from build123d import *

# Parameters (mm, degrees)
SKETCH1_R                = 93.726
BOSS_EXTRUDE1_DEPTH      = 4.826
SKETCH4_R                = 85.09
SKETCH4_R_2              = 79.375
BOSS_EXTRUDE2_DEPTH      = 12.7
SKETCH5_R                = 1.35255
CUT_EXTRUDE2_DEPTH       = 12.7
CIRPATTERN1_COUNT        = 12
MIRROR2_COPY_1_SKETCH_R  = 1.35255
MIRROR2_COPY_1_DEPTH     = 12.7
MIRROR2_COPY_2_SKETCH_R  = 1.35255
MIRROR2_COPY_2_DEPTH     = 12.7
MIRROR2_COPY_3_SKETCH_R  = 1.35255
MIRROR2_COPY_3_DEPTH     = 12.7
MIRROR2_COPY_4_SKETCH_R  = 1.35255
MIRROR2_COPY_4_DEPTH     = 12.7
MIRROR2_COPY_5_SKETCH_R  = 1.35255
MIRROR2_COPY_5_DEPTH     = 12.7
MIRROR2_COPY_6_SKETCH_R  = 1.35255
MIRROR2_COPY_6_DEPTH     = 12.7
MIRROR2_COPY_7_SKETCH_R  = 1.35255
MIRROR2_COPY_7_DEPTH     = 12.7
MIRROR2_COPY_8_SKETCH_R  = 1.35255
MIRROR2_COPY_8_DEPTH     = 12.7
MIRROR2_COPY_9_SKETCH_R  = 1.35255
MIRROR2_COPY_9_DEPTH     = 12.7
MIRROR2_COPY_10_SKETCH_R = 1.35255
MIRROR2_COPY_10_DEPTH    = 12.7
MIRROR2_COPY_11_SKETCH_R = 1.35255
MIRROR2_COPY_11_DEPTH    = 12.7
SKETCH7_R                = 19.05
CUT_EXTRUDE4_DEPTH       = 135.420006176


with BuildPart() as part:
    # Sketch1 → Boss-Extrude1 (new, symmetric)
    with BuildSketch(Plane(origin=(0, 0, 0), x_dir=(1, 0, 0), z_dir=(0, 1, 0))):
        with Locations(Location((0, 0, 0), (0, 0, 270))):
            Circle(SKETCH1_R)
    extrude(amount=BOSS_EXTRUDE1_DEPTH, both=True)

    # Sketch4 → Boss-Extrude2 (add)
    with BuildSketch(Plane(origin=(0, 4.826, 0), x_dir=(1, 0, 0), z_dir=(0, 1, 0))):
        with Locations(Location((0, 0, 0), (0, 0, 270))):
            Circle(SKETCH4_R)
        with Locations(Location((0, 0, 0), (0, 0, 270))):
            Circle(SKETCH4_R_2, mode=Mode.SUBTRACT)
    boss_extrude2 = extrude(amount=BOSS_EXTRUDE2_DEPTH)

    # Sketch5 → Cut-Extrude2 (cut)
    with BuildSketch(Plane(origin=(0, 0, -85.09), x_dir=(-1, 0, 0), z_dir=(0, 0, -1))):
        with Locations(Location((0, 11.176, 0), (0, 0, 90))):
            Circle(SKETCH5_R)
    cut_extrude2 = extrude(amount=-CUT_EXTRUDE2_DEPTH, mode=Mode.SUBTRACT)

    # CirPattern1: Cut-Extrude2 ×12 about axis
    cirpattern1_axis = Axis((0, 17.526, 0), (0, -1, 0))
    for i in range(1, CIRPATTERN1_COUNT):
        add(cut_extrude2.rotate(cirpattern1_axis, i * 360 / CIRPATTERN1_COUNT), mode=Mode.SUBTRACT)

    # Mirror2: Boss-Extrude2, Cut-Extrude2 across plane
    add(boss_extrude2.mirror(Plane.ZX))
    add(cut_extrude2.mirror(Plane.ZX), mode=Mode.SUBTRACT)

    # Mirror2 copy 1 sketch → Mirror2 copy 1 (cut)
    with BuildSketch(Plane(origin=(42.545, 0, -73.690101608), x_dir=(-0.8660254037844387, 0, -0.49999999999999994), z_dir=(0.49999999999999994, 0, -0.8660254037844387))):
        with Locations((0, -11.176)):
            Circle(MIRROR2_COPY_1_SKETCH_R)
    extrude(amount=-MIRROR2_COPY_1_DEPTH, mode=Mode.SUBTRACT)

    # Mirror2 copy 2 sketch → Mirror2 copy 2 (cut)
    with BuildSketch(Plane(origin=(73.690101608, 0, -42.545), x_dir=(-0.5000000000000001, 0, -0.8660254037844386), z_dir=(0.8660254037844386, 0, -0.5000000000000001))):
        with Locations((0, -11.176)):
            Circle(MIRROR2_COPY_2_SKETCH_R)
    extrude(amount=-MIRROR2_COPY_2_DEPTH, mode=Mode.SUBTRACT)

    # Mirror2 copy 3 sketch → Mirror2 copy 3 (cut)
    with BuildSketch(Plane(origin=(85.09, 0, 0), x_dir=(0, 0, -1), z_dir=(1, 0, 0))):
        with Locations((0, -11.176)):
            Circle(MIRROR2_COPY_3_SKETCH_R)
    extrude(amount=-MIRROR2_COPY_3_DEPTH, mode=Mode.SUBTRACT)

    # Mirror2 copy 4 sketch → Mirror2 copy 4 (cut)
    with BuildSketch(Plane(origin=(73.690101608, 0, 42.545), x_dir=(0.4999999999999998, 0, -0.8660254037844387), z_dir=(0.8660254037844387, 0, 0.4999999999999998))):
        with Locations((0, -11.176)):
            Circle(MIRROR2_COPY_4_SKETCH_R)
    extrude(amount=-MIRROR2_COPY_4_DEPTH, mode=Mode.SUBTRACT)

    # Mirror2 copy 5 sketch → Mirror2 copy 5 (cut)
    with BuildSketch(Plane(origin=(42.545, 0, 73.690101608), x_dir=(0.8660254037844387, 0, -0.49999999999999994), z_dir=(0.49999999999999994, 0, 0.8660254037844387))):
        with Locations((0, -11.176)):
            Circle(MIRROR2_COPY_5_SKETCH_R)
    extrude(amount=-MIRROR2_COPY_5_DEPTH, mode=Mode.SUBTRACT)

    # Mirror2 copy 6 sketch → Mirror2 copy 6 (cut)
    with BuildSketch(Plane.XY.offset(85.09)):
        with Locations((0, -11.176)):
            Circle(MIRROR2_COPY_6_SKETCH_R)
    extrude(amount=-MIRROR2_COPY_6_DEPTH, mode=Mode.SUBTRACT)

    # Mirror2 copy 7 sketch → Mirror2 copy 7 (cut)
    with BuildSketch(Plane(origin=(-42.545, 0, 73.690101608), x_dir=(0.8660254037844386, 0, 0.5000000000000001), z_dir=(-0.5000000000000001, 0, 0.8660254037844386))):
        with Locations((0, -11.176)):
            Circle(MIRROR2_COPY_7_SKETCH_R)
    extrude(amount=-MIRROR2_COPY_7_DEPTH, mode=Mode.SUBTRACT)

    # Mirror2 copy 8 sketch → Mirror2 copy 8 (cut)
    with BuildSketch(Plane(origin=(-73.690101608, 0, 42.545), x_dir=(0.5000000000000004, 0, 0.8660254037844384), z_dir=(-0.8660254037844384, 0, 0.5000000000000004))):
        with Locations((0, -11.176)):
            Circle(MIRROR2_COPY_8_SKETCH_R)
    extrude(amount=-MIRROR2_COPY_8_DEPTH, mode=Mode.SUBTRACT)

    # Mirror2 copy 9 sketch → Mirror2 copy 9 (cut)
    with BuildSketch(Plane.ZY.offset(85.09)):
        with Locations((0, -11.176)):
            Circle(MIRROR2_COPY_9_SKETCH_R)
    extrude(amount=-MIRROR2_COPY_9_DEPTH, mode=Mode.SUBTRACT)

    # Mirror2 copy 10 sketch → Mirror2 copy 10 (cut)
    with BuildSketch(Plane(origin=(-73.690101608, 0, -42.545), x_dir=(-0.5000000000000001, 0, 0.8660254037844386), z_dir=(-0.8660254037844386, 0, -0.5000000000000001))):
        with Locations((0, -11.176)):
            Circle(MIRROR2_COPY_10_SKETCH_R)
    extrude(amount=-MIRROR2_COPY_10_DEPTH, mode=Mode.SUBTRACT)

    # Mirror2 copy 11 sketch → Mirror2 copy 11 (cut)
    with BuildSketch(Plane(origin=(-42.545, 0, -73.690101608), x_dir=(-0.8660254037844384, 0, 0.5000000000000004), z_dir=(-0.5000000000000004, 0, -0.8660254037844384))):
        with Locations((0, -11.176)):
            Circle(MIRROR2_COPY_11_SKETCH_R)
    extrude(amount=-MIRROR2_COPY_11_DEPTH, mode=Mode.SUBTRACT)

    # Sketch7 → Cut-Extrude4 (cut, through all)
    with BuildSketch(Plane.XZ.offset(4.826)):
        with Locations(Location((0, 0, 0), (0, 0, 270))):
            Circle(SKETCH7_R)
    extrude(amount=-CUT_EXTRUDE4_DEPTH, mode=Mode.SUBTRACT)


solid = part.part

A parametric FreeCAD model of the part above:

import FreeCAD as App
import Part
import Sketcher
Q = App.Units.Quantity

doc = App.newDocument("Part")
params = doc.addObject("Spreadsheet::Sheet", "Params")
for row, (alias, value) in enumerate([
    ("sketch1_diameter", "7.38 in"),
    ("pad1_length", "0.38 in"),
    ("sketch2_diameter", "6.7 in"),
    ("sketch2_diameter2", "6.25 in"),
    ("pad2_length", "0.5 in"),
    ("pocket1_length", "0.5 in"),
    ("pocket2_length", "0.5 in"),
    ("pocket3_length", "0.5 in"),
    ("pocket4_length", "0.5 in"),
    ("pocket5_length", "0.5 in"),
    ("pocket6_length", "0.5 in"),
    ("pocket7_length", "0.5 in"),
    ("pocket8_length", "0.5 in"),
    ("pocket9_length", "0.5 in"),
    ("pocket10_length", "0.5 in"),
    ("pocket11_length", "0.5 in"),
    ("pocket12_length", "0.5 in"),
    ("sketch15_diameter", "1.5 in"),
], start=1):
    params.set(f"A{row}", alias)
    params.set(f"B{row}", "=" + value)
    params.setAlias(f"B{row}", alias)

body = doc.addObject("PartDesign::Body", "Body")

# Sketch on XZ plane
sketch1 = body.newObject("Sketcher::SketchObject", "Sketch")
sketch1.AttachmentSupport = (doc.getObject("XZ_Plane"), [""])
sketch1.MapMode = "FlatFace"
sketch1.addGeometry(Part.Circle(App.Vector(0, 0, 0), App.Vector(0, 0, 1), 93.726), False)
sketch1.addConstraint([
    Sketcher.Constraint("Coincident", 0, 3, -1, 1),
    Sketcher.Constraint("Diameter", 0, Q("7.38 in")),
])
sketch1.setExpression("Constraints[1]", "Params.sketch1_diameter")
pad1 = body.newObject("PartDesign::Pad", "Pad")
pad1.Profile = sketch1
pad1.setExpression("Length", "Params.pad1_length")
pad1.Midplane = True

# Sketch on XZ plane
sketch2 = body.newObject("Sketcher::SketchObject", "Sketch001")
sketch2.AttachmentSupport = (doc.getObject("XZ_Plane"), [""])
sketch2.MapMode = "FlatFace"
sketch2.AttachmentOffset = App.Placement(App.Vector(0, 0, -0.19 * 25.4), App.Rotation())
sketch2.addGeometry([
    Part.Circle(App.Vector(0, 0, 0), App.Vector(0, 0, 1), 85.09),
    Part.Circle(App.Vector(0, 0, 0), App.Vector(0, 0, 1), 79.375),
], False)
sketch2.addConstraint([
    Sketcher.Constraint("Coincident", 0, 3, -1, 1),
    Sketcher.Constraint("Coincident", 1, 3, -1, 1),
    Sketcher.Constraint("Diameter", 0, Q("6.7 in")),
    Sketcher.Constraint("Diameter", 1, Q("6.25 in")),
])
sketch2.setExpression("Constraints[2]", "Params.sketch2_diameter")
sketch2.setExpression("Constraints[3]", "Params.sketch2_diameter2")
pad2 = body.newObject("PartDesign::Pad", "Pad001")
pad2.Profile = sketch2
pad2.setExpression("Length", "Params.pad2_length")
pad2.Reversed = True

# Sketch on XY plane
sketch3 = body.newObject("Sketcher::SketchObject", "Sketch002")
sketch3.AttachmentSupport = (doc.getObject("XY_Plane"), [""])
sketch3.MapMode = "FlatFace"
sketch3.AttachmentOffset = App.Placement(App.Vector(0, 0, -3.35 * 25.4), App.Rotation())
sketch3.addGeometry(Part.Circle(App.Vector(0, 11.176, 0), App.Vector(0, 0, 1), 1.35255), False)
sketch3.addConstraint([
    Sketcher.Constraint("PointOnObject", 0, 3, -2),
    Sketcher.Constraint("Diameter", 0, Q("0.1065 in")),
    Sketcher.Constraint("DistanceY", -1, 1, 0, 3, Q("0.44 in")),
])
pocket1 = body.newObject("PartDesign::Pocket", "Pocket")
pocket1.Profile = sketch3
pocket1.setExpression("Length", "Params.pocket1_length")
pocket1.Reversed = True
doc.recompute()

polarpattern = body.newObject("PartDesign::PolarPattern", "PolarPattern")
polarpattern.Originals = [pocket1]
polarpattern.Axis = (doc.getObject("Y_Axis"), [""])
polarpattern.Angle = 360
polarpattern.Occurrences = 12
body.Tip = polarpattern
doc.recompute()

mirrored = body.newObject("PartDesign::Mirrored", "Mirrored")
mirrored.Originals = [pad2, pocket1]
mirrored.MirrorPlane = (doc.getObject("XZ_Plane"), [""])
body.Tip = mirrored

# Sketch on an angled plane
sketch4 = body.newObject("Sketcher::SketchObject", "Sketch003")
sketch4.Placement = App.Placement(App.Vector(42.545, 0, -73.690102), App.Rotation(App.Vector(-0.866025404, 0, -0.5), App.Vector(0, 1, 0), App.Vector(0.5, 0, -0.866025404), "ZXY"))
sketch4.addGeometry(Part.Circle(App.Vector(0, -11.176, 0), App.Vector(0, 0, 1), 1.35255), False)
sketch4.addConstraint([
    Sketcher.Constraint("PointOnObject", 0, 3, -2),
    Sketcher.Constraint("Diameter", 0, Q("0.1065 in")),
    Sketcher.Constraint("DistanceY", 0, 3, -1, 1, Q("0.44 in")),
])
pocket2 = body.newObject("PartDesign::Pocket", "Pocket001")
pocket2.Profile = sketch4
pocket2.setExpression("Length", "Params.pocket2_length")

# Sketch on an angled plane
sketch5 = body.newObject("Sketcher::SketchObject", "Sketch004")
sketch5.Placement = App.Placement(App.Vector(73.690102, 0, -42.545), App.Rotation(App.Vector(-0.5, 0, -0.866025404), App.Vector(0, 1, 0), App.Vector(0.866025404, 0, -0.5), "ZXY"))
sketch5.addGeometry(Part.Circle(App.Vector(0, -11.176, 0), App.Vector(0, 0, 1), 1.35255), False)
sketch5.addConstraint([
    Sketcher.Constraint("PointOnObject", 0, 3, -2),
    Sketcher.Constraint("Diameter", 0, Q("0.1065 in")),
    Sketcher.Constraint("DistanceY", 0, 3, -1, 1, Q("0.44 in")),
])
pocket3 = body.newObject("PartDesign::Pocket", "Pocket002")
pocket3.Profile = sketch5
pocket3.setExpression("Length", "Params.pocket3_length")

# Sketch on YZ plane
sketch6 = body.newObject("Sketcher::SketchObject", "Sketch005")
sketch6.AttachmentSupport = (doc.getObject("YZ_Plane"), [""])
sketch6.MapMode = "FlatFace"
sketch6.AttachmentOffset = App.Placement(App.Vector(0, 0, 3.35 * 25.4), App.Rotation())
sketch6.addGeometry(Part.Circle(App.Vector(-11.176, 0, 0), App.Vector(0, 0, 1), 1.35255), False)
sketch6.addConstraint([
    Sketcher.Constraint("PointOnObject", 0, 3, -1),
    Sketcher.Constraint("Diameter", 0, Q("0.1065 in")),
    Sketcher.Constraint("DistanceX", 0, 3, -1, 1, Q("0.44 in")),
])
pocket4 = body.newObject("PartDesign::Pocket", "Pocket003")
pocket4.Profile = sketch6
pocket4.setExpression("Length", "Params.pocket4_length")

# Sketch on an angled plane
sketch7 = body.newObject("Sketcher::SketchObject", "Sketch006")
sketch7.Placement = App.Placement(App.Vector(73.690102, 0, 42.545), App.Rotation(App.Vector(0.5, 0, -0.866025404), App.Vector(0, 1, 0), App.Vector(0.866025404, 0, 0.5), "ZXY"))
sketch7.addGeometry(Part.Circle(App.Vector(0, -11.176, 0), App.Vector(0, 0, 1), 1.35255), False)
sketch7.addConstraint([
    Sketcher.Constraint("PointOnObject", 0, 3, -2),
    Sketcher.Constraint("Diameter", 0, Q("0.1065 in")),
    Sketcher.Constraint("DistanceY", 0, 3, -1, 1, Q("0.44 in")),
])
pocket5 = body.newObject("PartDesign::Pocket", "Pocket004")
pocket5.Profile = sketch7
pocket5.setExpression("Length", "Params.pocket5_length")

# Sketch on an angled plane
sketch8 = body.newObject("Sketcher::SketchObject", "Sketch007")
sketch8.Placement = App.Placement(App.Vector(42.545, 0, 73.690102), App.Rotation(App.Vector(0.866025404, 0, -0.5), App.Vector(0, 1, 0), App.Vector(0.5, 0, 0.866025404), "ZXY"))
sketch8.addGeometry(Part.Circle(App.Vector(0, -11.176, 0), App.Vector(0, 0, 1), 1.35255), False)
sketch8.addConstraint([
    Sketcher.Constraint("PointOnObject", 0, 3, -2),
    Sketcher.Constraint("Diameter", 0, Q("0.1065 in")),
    Sketcher.Constraint("DistanceY", 0, 3, -1, 1, Q("0.44 in")),
])
pocket6 = body.newObject("PartDesign::Pocket", "Pocket005")
pocket6.Profile = sketch8
pocket6.setExpression("Length", "Params.pocket6_length")

# Sketch on XY plane
sketch9 = body.newObject("Sketcher::SketchObject", "Sketch008")
sketch9.AttachmentSupport = (doc.getObject("XY_Plane"), [""])
sketch9.MapMode = "FlatFace"
sketch9.AttachmentOffset = App.Placement(App.Vector(0, 0, 3.35 * 25.4), App.Rotation())
sketch9.addGeometry(Part.Circle(App.Vector(0, -11.176, 0), App.Vector(0, 0, 1), 1.35255), False)
sketch9.addConstraint([
    Sketcher.Constraint("PointOnObject", 0, 3, -2),
    Sketcher.Constraint("Diameter", 0, Q("0.1065 in")),
    Sketcher.Constraint("DistanceY", 0, 3, -1, 1, Q("0.44 in")),
])
pocket7 = body.newObject("PartDesign::Pocket", "Pocket006")
pocket7.Profile = sketch9
pocket7.setExpression("Length", "Params.pocket7_length")

# Sketch on an angled plane
sketch10 = body.newObject("Sketcher::SketchObject", "Sketch009")
sketch10.Placement = App.Placement(App.Vector(-42.545, 0, 73.690102), App.Rotation(App.Vector(0.866025404, 0, 0.5), App.Vector(0, 1, 0), App.Vector(-0.5, 0, 0.866025404), "ZXY"))
sketch10.addGeometry(Part.Circle(App.Vector(0, -11.176, 0), App.Vector(0, 0, 1), 1.35255), False)
sketch10.addConstraint([
    Sketcher.Constraint("PointOnObject", 0, 3, -2),
    Sketcher.Constraint("Diameter", 0, Q("0.1065 in")),
    Sketcher.Constraint("DistanceY", 0, 3, -1, 1, Q("0.44 in")),
])
pocket8 = body.newObject("PartDesign::Pocket", "Pocket007")
pocket8.Profile = sketch10
pocket8.setExpression("Length", "Params.pocket8_length")

# Sketch on an angled plane
sketch11 = body.newObject("Sketcher::SketchObject", "Sketch010")
sketch11.Placement = App.Placement(App.Vector(-73.690102, 0, 42.545), App.Rotation(App.Vector(0.5, 0, 0.866025404), App.Vector(0, 1, 0), App.Vector(-0.866025404, 0, 0.5), "ZXY"))
sketch11.addGeometry(Part.Circle(App.Vector(0, -11.176, 0), App.Vector(0, 0, 1), 1.35255), False)
sketch11.addConstraint([
    Sketcher.Constraint("PointOnObject", 0, 3, -2),
    Sketcher.Constraint("Diameter", 0, Q("0.1065 in")),
    Sketcher.Constraint("DistanceY", 0, 3, -1, 1, Q("0.44 in")),
])
pocket9 = body.newObject("PartDesign::Pocket", "Pocket008")
pocket9.Profile = sketch11
pocket9.setExpression("Length", "Params.pocket9_length")

# Sketch on YZ plane
sketch12 = body.newObject("Sketcher::SketchObject", "Sketch011")
sketch12.AttachmentSupport = (doc.getObject("YZ_Plane"), [""])
sketch12.MapMode = "FlatFace"
sketch12.AttachmentOffset = App.Placement(App.Vector(0, 0, -3.35 * 25.4), App.Rotation())
sketch12.addGeometry(Part.Circle(App.Vector(-11.176, 0, 0), App.Vector(0, 0, 1), 1.35255), False)
sketch12.addConstraint([
    Sketcher.Constraint("PointOnObject", 0, 3, -1),
    Sketcher.Constraint("Diameter", 0, Q("0.1065 in")),
    Sketcher.Constraint("DistanceX", 0, 3, -1, 1, Q("0.44 in")),
])
pocket10 = body.newObject("PartDesign::Pocket", "Pocket009")
pocket10.Profile = sketch12
pocket10.setExpression("Length", "Params.pocket10_length")
pocket10.Reversed = True

# Sketch on an angled plane
sketch13 = body.newObject("Sketcher::SketchObject", "Sketch012")
sketch13.Placement = App.Placement(App.Vector(-73.690102, 0, -42.545), App.Rotation(App.Vector(-0.5, 0, 0.866025404), App.Vector(0, 1, 0), App.Vector(-0.866025404, 0, -0.5), "ZXY"))
sketch13.addGeometry(Part.Circle(App.Vector(0, -11.176, 0), App.Vector(0, 0, 1), 1.35255), False)
sketch13.addConstraint([
    Sketcher.Constraint("PointOnObject", 0, 3, -2),
    Sketcher.Constraint("Diameter", 0, Q("0.1065 in")),
    Sketcher.Constraint("DistanceY", 0, 3, -1, 1, Q("0.44 in")),
])
pocket11 = body.newObject("PartDesign::Pocket", "Pocket010")
pocket11.Profile = sketch13
pocket11.setExpression("Length", "Params.pocket11_length")

# Sketch on an angled plane
sketch14 = body.newObject("Sketcher::SketchObject", "Sketch013")
sketch14.Placement = App.Placement(App.Vector(-42.545, 0, -73.690102), App.Rotation(App.Vector(-0.866025404, 0, 0.5), App.Vector(0, 1, 0), App.Vector(-0.5, 0, -0.866025404), "ZXY"))
sketch14.addGeometry(Part.Circle(App.Vector(0, -11.176, 0), App.Vector(0, 0, 1), 1.35255), False)
sketch14.addConstraint([
    Sketcher.Constraint("PointOnObject", 0, 3, -2),
    Sketcher.Constraint("Diameter", 0, Q("0.1065 in")),
    Sketcher.Constraint("DistanceY", 0, 3, -1, 1, Q("0.44 in")),
])
pocket12 = body.newObject("PartDesign::Pocket", "Pocket011")
pocket12.Profile = sketch14
pocket12.setExpression("Length", "Params.pocket12_length")

# Sketch on XZ plane
sketch15 = body.newObject("Sketcher::SketchObject", "Sketch014")
sketch15.AttachmentSupport = (doc.getObject("XZ_Plane"), [""])
sketch15.MapMode = "FlatFace"
sketch15.AttachmentOffset = App.Placement(App.Vector(0, 0, 0.19 * 25.4), App.Rotation())
sketch15.addGeometry(Part.Circle(App.Vector(0, 0, 0), App.Vector(0, 0, 1), 19.05), False)
sketch15.addConstraint([
    Sketcher.Constraint("Coincident", 0, 3, -1, 1),
    Sketcher.Constraint("Diameter", 0, Q("1.5 in")),
])
sketch15.setExpression("Constraints[1]", "Params.sketch15_diameter")
pocket13 = body.newObject("PartDesign::Pocket", "Pocket012")
pocket13.Profile = sketch15
pocket13.Type = "ThroughAll"

doc.recompute()
